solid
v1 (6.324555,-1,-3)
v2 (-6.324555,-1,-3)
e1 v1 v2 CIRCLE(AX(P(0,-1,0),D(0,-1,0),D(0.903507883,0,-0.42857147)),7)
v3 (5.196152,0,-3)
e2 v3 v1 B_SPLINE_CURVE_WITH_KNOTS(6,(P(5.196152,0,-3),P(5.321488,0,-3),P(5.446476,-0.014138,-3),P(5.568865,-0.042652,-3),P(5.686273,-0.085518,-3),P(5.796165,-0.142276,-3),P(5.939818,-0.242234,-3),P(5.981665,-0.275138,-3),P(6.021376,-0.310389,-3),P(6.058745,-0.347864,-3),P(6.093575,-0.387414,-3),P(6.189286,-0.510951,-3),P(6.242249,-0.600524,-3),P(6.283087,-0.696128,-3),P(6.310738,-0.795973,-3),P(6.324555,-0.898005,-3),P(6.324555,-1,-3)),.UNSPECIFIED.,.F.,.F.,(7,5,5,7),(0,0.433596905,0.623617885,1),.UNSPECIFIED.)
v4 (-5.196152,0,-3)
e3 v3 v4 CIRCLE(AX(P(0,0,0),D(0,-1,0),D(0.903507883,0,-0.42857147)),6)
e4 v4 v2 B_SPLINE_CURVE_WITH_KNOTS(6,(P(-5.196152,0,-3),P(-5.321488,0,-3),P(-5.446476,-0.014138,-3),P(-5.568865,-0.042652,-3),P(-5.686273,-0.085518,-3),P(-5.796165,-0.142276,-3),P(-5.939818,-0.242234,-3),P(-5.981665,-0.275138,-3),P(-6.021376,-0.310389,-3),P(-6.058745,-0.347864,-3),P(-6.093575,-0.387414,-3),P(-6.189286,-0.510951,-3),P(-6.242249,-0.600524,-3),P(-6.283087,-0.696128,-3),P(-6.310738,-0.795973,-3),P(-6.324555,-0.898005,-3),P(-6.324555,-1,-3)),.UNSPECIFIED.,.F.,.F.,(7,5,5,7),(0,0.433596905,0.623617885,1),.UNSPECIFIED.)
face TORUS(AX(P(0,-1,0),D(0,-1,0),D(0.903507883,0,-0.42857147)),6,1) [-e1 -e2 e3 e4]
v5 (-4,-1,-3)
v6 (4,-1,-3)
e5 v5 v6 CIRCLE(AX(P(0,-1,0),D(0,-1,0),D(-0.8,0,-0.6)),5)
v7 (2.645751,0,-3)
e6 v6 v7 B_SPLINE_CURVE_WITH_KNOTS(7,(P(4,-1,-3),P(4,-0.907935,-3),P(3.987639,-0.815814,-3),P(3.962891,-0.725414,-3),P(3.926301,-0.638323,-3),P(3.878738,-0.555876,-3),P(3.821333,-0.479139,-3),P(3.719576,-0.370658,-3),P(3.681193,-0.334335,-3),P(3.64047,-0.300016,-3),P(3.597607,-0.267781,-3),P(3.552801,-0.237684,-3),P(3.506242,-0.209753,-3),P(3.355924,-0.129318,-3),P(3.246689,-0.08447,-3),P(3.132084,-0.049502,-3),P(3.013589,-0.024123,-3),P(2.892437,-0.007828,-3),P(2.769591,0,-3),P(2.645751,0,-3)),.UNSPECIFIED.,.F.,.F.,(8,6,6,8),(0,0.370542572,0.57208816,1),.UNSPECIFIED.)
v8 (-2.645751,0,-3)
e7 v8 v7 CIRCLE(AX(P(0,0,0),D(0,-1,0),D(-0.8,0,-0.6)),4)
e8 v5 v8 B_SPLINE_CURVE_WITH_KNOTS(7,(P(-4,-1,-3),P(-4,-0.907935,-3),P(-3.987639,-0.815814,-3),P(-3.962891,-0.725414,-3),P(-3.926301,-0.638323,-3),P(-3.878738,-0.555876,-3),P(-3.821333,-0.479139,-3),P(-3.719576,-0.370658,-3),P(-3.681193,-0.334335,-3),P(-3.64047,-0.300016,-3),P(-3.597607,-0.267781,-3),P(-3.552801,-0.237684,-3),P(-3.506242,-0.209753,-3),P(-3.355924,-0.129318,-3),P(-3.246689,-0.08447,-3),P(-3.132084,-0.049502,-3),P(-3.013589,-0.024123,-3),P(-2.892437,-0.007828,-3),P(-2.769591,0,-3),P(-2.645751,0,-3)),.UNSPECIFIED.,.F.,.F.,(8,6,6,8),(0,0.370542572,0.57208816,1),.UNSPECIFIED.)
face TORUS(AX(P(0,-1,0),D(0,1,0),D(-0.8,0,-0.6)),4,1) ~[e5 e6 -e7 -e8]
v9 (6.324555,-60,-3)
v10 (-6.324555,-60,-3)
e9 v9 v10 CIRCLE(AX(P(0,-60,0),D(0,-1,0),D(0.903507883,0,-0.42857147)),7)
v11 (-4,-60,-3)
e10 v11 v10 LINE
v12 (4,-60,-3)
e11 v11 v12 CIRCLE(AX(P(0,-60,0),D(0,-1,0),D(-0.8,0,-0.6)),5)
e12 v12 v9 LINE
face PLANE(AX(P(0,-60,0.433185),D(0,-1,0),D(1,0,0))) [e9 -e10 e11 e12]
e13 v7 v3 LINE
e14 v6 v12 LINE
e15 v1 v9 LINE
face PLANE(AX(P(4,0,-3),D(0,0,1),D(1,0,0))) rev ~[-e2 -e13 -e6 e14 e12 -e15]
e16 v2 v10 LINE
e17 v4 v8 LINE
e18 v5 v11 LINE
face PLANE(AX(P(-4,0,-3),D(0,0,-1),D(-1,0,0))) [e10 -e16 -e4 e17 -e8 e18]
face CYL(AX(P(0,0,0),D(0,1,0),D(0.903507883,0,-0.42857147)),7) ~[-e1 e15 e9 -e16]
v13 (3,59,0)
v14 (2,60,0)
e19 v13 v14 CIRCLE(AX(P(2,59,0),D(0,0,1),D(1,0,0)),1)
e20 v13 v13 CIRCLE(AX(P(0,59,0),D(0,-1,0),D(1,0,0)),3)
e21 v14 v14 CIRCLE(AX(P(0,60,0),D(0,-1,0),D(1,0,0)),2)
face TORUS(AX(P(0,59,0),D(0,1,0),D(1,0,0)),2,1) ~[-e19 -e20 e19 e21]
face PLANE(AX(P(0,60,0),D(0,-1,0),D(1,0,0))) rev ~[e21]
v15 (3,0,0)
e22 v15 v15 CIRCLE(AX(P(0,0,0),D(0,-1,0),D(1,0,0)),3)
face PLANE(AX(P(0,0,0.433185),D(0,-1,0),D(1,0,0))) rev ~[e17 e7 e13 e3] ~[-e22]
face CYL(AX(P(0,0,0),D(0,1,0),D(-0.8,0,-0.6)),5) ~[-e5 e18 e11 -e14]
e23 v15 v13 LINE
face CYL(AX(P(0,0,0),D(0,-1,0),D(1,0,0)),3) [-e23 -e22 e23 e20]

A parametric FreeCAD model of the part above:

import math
import FreeCAD as App
import Part
import Sketcher
Q = App.Units.Quantity


def edges_at(feature, points):
    """Names of the edges that pass closest to the given points."""
    edges = feature.Shape.Edges
    near = lambda p: min(range(len(edges)), key=lambda i: edges[i].distToShape(Part.Vertex(*p))[0])
    return sorted({f"Edge{near(p) + 1}" for p in points})

doc = App.newDocument("Part")
body = doc.addObject("PartDesign::Body", "Body")

sketch1 = body.newObject("Sketcher::SketchObject", "Sketch")
sketch1.AttachmentSupport = (doc.getObject("XZ_Plane"), [""])
sketch1.MapMode = "FlatFace"
sketch1.addGeometry([
    Part.ArcOfCircle(Part.Circle(App.Vector(0, 0, 0), App.Vector(0, 0, 1), 5), math.radians(-143.130102), math.radians(-36.869898)),
    Part.LineSegment(App.Vector(4, -3, 0), App.Vector(6.324555, -3, 0)),
    Part.ArcOfCircle(Part.Circle(App.Vector(0, 0, 0), App.Vector(0, 0, 1), 7), math.radians(-25.376936), math.radians(205.376936)),
    Part.LineSegment(App.Vector(-6.324555, -3, 0), App.Vector(-4, -3, 0)),
], False)
sketch1.addConstraint([
    Sketcher.Constraint("Coincident", 0, 2, 1, 1),
    Sketcher.Constraint("Coincident", 1, 2, 2, 1),
    Sketcher.Constraint("Coincident", 2, 2, 3, 1),
    Sketcher.Constraint("Coincident", 3, 2, 0, 1),
    Sketcher.Constraint("Horizontal", 1),
    Sketcher.Constraint("Horizontal", 3),
    Sketcher.Constraint("Coincident", 0, 3, -1, 1),
    Sketcher.Constraint("Coincident", 2, 3, -1, 1),
    Sketcher.Constraint("Horizontal", 1, 2, 2, 2),
    Sketcher.Constraint("Radius", 0, Q("5 mm")),
    Sketcher.Constraint("Radius", 2, Q("7 mm")),
    Sketcher.Constraint("DistanceX", -1, 1, 0, 2, Q("4 mm")),
])
pad1 = body.newObject("PartDesign::Pad", "Pad")
pad1.Profile = sketch1
pad1.Length = 60

sketch2 = body.newObject("Sketcher::SketchObject", "Sketch001")
sketch2.AttachmentSupport = (doc.getObject("XZ_Plane"), [""])
sketch2.MapMode = "FlatFace"
sketch2.addGeometry(Part.Circle(App.Vector(0, 0, 0), App.Vector(0, 0, 1), 3), False)
sketch2.addConstraint([
    Sketcher.Constraint("Coincident", 0, 3, -1, 1),
    Sketcher.Constraint("Diameter", 0, Q("6 mm")),
])
pad2 = body.newObject("PartDesign::Pad", "Pad001")
pad2.Profile = sketch2
pad2.Length = 60
pad2.Reversed = True
doc.recompute()

fillet = body.newObject("PartDesign::Fillet", "Fillet")
fillet.Base = (pad2, edges_at(pad2, [(0, 0, 7), (0, 0, -5)]))
fillet.Radius = 1
doc.recompute()

fillet2 = body.newObject("PartDesign::Fillet", "Fillet001")
fillet2.Base = (fillet, edges_at(fillet, [(-3, 60, 0)]))
fillet2.Radius = 1

doc.recompute()
